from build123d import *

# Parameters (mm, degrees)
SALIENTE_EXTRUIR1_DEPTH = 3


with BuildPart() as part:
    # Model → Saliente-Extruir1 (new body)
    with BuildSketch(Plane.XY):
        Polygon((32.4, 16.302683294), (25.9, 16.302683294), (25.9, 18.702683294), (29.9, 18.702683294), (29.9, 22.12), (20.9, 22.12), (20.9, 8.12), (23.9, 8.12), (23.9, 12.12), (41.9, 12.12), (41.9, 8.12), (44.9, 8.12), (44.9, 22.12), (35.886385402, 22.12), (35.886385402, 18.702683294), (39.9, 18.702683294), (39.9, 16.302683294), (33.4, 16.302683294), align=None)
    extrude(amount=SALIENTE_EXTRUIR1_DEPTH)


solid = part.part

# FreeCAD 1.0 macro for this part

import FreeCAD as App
import Part
import Sketcher
from FreeCAD import Vector
Q = App.Units.Quantity


def add_polygon(sketch, points):
    """Adds a closed chain of lines whose ends are joined by coincident constraints."""
    first, n = sketch.GeometryCount, len(points)
    for a, b in zip(points, points[1:] + points[:1]):
        sketch.addGeometry(Part.LineSegment(App.Vector(*a, 0), App.Vector(*b, 0)), False)
    for i in range(n):
        sketch.addConstraint(Sketcher.Constraint("Coincident", first + i, 2, first + (i + 1) % n, 1))

doc = App.newDocument("Part")
body = doc.addObject("PartDesign::Body", "Body")

# Sketch on XY plane
sketch1 = body.newObject("Sketcher::SketchObject", "Sketch")
sketch1.AttachmentSupport = (doc.getObject("XY_Plane"), [""])
sketch1.MapMode = "FlatFace"
add_polygon(sketch1, [(25.9, 16.3), (25.9, 18.7), (29.9, 18.7), (29.9, 22.1), (20.9, 22.1), (20.9, 8.1), (23.9, 8.1), (23.9, 12.1), (41.9, 12.1), (41.9, 8.1), (44.9, 8.1), (44.9, 22.1), (35.9, 22.1), (35.9, 18.7), (39.9, 18.7), (39.9, 16.3)])  # lines 0-15
sketch1.addConstraint([
    Sketcher.Constraint("Vertical", 0),
    Sketcher.Constraint("Horizontal", 1),
    Sketcher.Constraint("Vertical", 2),
    Sketcher.Constraint("Horizontal", 3),
    Sketcher.Constraint("Vertical", 4),
    Sketcher.Constraint("Horizontal", 5),
    Sketcher.Constraint("Vertical", 6),
    Sketcher.Constraint("Horizontal", 7),
    Sketcher.Constraint("Vertical", 8),
    Sketcher.Constraint("Horizontal", 9),
    Sketcher.Constraint("Vertical", 10),
    Sketcher.Constraint("Horizontal", 11),
    Sketcher.Constraint("Vertical", 12),
    Sketcher.Constraint("Horizontal", 13),
    Sketcher.Constraint("Vertical", 14),
    Sketcher.Constraint("Horizontal", 15),
    Sketcher.Constraint("Horizontal", 5, 2, 8, 2),
    Sketcher.Constraint("Horizontal", 3, 2, 10, 2),
    Sketcher.Constraint("Horizontal", 1, 2, 12, 2),
    Sketcher.Constraint("Equal", 5, 9),
    Sketcher.Constraint("Equal", 15, 4),
    Sketcher.Constraint("Equal", 1, 6),
    Sketcher.Constraint("DistanceX", 1, 1, 1, 2, Q("4 mm")),
    Sketcher.Constraint("DistanceX", 3, 2, 3, 1, Q("9 mm")),
    Sketcher.Constraint("DistanceX", 5, 1, 5, 2, Q("3 mm")),
    Sketcher.Constraint("DistanceX", 7, 1, 7, 2, Q("18 mm")),
    Sketcher.Constraint("DistanceX", 15, 2, 15, 1, Q("14 mm")),
    Sketcher.Constraint("DistanceY", 0, 1, 0, 2, Q("2.4 mm")),
    Sketcher.Constraint("DistanceX", -1, 1, 0, 2, Q("25.9 mm")),
    Sketcher.Constraint("DistanceY", -1, 1, 2, 2, Q("22.12 mm")),
    Sketcher.Constraint("DistanceX", 11, 2, 11, 1, Q("9.013615 mm")),
    Sketcher.Constraint("DistanceY", 2, 1, 2, 2, Q("3.417317 mm")),
])
pad1 = body.newObject("PartDesign::Pad", "Pad")
pad1.Profile = sketch1
pad1.Length = 3

doc.recompute()
